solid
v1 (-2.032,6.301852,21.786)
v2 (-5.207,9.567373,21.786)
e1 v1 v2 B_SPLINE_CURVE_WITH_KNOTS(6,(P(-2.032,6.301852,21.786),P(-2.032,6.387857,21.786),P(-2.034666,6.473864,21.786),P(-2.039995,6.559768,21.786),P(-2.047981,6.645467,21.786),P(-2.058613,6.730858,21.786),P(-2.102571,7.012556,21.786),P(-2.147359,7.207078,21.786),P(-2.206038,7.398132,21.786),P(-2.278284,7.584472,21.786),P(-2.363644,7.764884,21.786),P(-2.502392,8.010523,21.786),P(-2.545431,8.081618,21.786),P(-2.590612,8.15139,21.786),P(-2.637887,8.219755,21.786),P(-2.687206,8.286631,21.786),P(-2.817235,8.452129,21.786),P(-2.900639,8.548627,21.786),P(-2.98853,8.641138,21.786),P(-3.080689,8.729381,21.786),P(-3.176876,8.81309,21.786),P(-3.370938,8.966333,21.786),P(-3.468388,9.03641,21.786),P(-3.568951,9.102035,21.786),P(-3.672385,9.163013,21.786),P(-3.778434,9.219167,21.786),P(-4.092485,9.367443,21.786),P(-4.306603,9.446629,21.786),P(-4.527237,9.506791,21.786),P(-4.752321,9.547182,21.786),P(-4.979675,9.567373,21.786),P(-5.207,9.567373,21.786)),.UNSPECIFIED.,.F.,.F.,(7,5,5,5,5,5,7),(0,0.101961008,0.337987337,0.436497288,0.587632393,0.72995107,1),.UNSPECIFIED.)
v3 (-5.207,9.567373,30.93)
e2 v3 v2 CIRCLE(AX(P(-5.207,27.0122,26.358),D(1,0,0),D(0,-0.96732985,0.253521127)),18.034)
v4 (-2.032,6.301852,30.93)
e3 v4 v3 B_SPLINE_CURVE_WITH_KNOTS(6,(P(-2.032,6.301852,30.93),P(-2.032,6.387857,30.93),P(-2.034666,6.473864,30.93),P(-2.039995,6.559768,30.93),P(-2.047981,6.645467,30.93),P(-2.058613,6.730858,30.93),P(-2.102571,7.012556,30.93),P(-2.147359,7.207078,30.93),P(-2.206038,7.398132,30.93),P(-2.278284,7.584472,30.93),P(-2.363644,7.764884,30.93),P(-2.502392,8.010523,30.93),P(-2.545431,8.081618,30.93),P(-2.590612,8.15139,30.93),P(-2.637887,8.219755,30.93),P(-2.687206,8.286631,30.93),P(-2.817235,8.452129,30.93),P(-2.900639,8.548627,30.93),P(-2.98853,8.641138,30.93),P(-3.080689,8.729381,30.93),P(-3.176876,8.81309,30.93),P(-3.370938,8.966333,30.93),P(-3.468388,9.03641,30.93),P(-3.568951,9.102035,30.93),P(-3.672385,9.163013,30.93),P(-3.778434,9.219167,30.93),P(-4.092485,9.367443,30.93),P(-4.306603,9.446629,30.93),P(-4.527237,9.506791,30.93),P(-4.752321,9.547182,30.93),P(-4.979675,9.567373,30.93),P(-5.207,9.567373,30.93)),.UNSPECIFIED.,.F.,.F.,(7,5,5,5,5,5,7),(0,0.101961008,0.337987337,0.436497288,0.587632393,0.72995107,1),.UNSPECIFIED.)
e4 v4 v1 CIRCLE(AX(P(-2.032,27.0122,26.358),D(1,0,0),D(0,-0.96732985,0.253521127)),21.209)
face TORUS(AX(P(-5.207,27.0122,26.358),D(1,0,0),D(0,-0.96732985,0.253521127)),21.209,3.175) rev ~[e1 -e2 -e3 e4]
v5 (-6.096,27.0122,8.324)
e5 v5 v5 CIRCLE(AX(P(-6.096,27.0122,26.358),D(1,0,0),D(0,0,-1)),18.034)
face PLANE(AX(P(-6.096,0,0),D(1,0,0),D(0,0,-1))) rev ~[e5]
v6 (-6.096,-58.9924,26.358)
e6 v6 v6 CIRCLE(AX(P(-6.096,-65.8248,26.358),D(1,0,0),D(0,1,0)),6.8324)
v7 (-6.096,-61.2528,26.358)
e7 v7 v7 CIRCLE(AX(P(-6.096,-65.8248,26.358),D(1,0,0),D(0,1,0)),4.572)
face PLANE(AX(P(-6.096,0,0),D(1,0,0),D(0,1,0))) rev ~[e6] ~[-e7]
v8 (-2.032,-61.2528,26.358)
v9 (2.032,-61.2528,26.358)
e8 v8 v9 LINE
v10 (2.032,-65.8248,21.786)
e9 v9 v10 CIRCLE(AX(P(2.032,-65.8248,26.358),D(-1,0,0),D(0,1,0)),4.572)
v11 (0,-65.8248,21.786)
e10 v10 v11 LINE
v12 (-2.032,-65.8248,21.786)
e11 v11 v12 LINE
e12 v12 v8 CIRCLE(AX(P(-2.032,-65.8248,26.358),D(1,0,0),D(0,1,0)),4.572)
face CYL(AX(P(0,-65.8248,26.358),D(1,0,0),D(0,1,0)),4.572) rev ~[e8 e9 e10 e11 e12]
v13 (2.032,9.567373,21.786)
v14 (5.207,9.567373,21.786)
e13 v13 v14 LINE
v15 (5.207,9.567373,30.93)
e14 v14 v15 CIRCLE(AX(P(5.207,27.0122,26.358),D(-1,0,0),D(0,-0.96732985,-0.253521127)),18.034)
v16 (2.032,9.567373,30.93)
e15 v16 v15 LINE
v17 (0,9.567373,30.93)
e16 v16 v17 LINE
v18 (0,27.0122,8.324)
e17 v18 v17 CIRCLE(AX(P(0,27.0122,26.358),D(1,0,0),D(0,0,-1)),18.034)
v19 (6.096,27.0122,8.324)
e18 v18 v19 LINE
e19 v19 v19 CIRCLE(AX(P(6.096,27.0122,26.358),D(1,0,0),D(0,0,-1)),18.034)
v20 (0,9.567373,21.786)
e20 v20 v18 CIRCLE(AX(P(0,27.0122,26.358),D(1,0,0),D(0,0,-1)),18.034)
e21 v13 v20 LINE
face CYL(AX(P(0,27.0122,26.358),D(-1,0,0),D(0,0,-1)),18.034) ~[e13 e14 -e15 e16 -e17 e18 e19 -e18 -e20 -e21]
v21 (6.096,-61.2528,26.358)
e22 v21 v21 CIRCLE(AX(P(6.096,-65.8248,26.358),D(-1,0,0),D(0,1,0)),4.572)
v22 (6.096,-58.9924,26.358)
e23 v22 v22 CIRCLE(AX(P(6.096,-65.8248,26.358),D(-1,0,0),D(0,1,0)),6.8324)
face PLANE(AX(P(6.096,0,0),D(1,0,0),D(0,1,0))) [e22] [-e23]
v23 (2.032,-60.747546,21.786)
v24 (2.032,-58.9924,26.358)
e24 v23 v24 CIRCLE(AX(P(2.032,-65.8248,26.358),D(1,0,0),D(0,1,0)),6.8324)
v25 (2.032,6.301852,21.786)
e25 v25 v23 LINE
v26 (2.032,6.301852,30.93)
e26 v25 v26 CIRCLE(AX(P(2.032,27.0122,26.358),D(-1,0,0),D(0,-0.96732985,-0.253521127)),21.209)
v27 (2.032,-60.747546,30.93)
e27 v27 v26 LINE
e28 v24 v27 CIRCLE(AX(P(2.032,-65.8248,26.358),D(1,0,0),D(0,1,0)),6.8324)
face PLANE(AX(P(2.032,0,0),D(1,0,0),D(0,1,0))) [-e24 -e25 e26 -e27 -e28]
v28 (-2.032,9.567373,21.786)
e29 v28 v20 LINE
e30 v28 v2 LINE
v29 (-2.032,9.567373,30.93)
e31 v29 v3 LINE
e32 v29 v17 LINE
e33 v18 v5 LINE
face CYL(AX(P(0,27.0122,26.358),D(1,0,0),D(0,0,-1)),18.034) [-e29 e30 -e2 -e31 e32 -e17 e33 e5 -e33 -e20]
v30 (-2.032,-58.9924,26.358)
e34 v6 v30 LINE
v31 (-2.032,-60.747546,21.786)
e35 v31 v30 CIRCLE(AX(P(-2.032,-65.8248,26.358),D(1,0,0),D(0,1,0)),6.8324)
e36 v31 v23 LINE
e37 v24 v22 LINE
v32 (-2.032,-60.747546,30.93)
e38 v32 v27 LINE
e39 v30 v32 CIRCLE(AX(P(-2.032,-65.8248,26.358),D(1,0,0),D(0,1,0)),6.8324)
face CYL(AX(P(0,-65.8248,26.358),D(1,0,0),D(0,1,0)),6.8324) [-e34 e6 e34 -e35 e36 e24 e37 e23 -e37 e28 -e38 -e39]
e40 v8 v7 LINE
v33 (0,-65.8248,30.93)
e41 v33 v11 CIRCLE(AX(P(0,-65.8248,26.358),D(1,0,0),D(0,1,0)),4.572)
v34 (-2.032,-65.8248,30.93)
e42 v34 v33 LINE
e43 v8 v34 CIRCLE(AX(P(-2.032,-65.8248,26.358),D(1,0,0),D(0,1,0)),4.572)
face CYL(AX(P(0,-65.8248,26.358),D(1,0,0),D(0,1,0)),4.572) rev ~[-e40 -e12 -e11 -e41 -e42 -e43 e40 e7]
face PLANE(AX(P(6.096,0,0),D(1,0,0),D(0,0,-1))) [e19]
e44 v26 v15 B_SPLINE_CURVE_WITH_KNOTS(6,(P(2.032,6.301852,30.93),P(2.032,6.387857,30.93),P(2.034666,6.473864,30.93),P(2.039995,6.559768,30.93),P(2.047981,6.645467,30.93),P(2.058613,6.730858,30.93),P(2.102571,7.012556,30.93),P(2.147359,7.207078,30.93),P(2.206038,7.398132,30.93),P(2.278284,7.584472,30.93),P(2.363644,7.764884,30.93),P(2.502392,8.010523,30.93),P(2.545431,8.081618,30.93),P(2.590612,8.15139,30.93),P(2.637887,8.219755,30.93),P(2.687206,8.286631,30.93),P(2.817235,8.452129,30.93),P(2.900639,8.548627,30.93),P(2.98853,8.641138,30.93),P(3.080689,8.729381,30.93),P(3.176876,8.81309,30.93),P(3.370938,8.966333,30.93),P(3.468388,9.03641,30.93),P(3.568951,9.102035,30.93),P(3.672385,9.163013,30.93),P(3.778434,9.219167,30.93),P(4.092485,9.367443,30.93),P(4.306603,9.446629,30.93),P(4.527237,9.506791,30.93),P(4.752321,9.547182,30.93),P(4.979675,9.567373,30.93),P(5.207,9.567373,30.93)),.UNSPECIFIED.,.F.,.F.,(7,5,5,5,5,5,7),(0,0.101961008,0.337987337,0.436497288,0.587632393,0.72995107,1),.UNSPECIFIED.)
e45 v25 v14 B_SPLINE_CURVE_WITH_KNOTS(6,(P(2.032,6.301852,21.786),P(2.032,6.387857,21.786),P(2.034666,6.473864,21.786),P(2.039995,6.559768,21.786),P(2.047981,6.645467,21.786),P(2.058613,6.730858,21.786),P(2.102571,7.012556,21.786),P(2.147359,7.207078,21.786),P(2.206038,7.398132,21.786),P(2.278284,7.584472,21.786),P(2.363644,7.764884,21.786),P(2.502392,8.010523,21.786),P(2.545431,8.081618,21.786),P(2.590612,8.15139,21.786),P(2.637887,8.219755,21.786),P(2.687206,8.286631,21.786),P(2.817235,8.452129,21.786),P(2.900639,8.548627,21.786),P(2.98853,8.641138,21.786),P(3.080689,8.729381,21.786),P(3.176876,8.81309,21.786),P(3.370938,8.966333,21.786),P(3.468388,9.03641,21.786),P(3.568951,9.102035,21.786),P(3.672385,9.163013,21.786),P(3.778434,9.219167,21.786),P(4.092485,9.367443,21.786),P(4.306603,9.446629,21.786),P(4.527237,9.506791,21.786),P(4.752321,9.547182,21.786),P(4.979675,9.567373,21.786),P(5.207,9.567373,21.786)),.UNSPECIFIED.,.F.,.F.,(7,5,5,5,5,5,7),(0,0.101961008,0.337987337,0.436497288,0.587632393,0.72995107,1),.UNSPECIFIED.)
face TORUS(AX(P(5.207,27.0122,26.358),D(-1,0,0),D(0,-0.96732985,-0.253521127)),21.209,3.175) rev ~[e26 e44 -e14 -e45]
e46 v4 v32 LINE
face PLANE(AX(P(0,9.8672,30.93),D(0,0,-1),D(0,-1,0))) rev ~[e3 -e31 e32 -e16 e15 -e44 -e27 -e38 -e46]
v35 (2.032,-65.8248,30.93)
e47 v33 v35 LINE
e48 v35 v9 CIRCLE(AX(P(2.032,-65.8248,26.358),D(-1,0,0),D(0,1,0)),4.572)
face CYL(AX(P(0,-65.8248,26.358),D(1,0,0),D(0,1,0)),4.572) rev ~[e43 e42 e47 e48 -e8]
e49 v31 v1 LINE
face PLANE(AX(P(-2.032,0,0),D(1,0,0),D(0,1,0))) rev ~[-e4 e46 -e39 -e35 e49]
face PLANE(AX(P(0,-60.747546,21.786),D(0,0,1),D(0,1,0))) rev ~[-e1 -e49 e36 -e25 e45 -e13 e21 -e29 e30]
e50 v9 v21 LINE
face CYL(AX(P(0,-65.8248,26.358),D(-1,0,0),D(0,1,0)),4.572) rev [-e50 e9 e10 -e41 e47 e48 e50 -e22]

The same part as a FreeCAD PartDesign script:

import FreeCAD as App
import Part
import Sketcher
from FreeCAD import Vector
Q = App.Units.Quantity


def edges_at(feature, points):
    """Names of the edges that pass closest to the given points."""
    edges = feature.Shape.Edges
    near = lambda p: min(range(len(edges)), key=lambda i: edges[i].distToShape(Part.Vertex(*p))[0])
    return sorted({f"Edge{near(p) + 1}" for p in points})


def add_polygon(sketch, points):
    """Adds a closed chain of lines whose ends are joined by coincident constraints."""
    first, n = sketch.GeometryCount, len(points)
    for a, b in zip(points, points[1:] + points[:1]):
        sketch.addGeometry(Part.LineSegment(App.Vector(*a, 0), App.Vector(*b, 0)), False)
    for i in range(n):
        sketch.addConstraint(Sketcher.Constraint("Coincident", first + i, 2, first + (i + 1) % n, 1))

doc = App.newDocument("Part")
body = doc.addObject("PartDesign::Body", "Body")

# Sketch on YZ plane
sketch1 = body.newObject("Sketcher::SketchObject", "Sketch")
sketch1.AttachmentSupport = (doc.getObject("YZ_Plane"), [""])
sketch1.MapMode = "FlatFace"
add_polygon(sketch1, [(9.8672, 21.786), (9.8672, 30.93), (-65.8248, 30.93), (-65.8248, 21.786)])  # lines 0-3
sketch1.addConstraint(Sketcher.Constraint("Vertical", 0))
sketch1.addConstraint(Sketcher.Constraint("Horizontal", 1))
sketch1.addConstraint(Sketcher.Constraint("Vertical", 2))
sketch1.addConstraint(Sketcher.Constraint("Horizontal", 3))
sketch1.addConstraint(Sketcher.Constraint("DistanceX", 1, 2, 1, 1, Q("2.98 in")))
sketch1.addConstraint(Sketcher.Constraint("DistanceY", 0, 1, 0, 2, Q("0.36 in")))
sketch1.addConstraint(Sketcher.Constraint("DistanceX", -1, 1, 0, 2, Q("9.8672 mm")))
sketch1.addConstraint(Sketcher.Constraint("DistanceY", -1, 1, 0, 2, Q("30.93 mm")))
pad1 = body.newObject("PartDesign::Pad", "Pad")
pad1.Profile = sketch1
pad1.Length = Q("0.16 in")
pad1.Midplane = True

# Sketch on YZ plane
sketch2 = body.newObject("Sketcher::SketchObject", "Sketch001")
sketch2.AttachmentSupport = (doc.getObject("YZ_Plane"), [""])
sketch2.MapMode = "FlatFace"
sketch2.addGeometry(Part.Circle(Vector(-65.8248, 26.358, 0), Vector(0, 0, 1), 6.8324), False)
sketch2.addGeometry(Part.Circle(Vector(-65.8248, 26.358, 0), Vector(0, 0, 1), 4.572), False)
sketch2.addConstraint(Sketcher.Constraint("Coincident", 1, 3, 0, 3))
sketch2.addConstraint(Sketcher.Constraint("Diameter", 1, Q("0.36 in")))
sketch2.addConstraint(Sketcher.Constraint("Diameter", 0, Q("13.6648 mm")))
sketch2.addConstraint(Sketcher.Constraint("DistanceX", 0, 3, -1, 1, Q("65.8248 mm")))
sketch2.addConstraint(Sketcher.Constraint("DistanceY", -1, 1, 0, 3, Q("26.358 mm")))
pad2 = body.newObject("PartDesign::Pad", "Pad001")
pad2.Profile = sketch2
pad2.Length = Q("0.48 in")
pad2.Midplane = True

# Sketch on YZ plane
sketch3 = body.newObject("Sketcher::SketchObject", "Sketch002")
sketch3.AttachmentSupport = (doc.getObject("YZ_Plane"), [""])
sketch3.MapMode = "FlatFace"
sketch3.addGeometry(Part.Circle(Vector(-65.8248, 26.358, 0), Vector(0, 0, 1), 4.572), False)
sketch3.addConstraint(Sketcher.Constraint("Diameter", 0, Q("0.36 in")))
sketch3.addConstraint(Sketcher.Constraint("DistanceX", 0, 3, -1, 1, Q("65.8248 mm")))
sketch3.addConstraint(Sketcher.Constraint("DistanceY", -1, 1, 0, 3, Q("26.358 mm")))
pocket1 = body.newObject("PartDesign::Pocket", "Pocket")
pocket1.Profile = sketch3
pocket1.Length = Q("0.48 in")
pocket1.Midplane = True

# Sketch on YZ plane
sketch4 = body.newObject("Sketcher::SketchObject", "Sketch003")
sketch4.AttachmentSupport = (doc.getObject("YZ_Plane"), [""])
sketch4.MapMode = "FlatFace"
sketch4.addGeometry(Part.Circle(Vector(27.0122, 26.358, 0), Vector(0, 0, 1), 18.034), False)
sketch4.addConstraint(Sketcher.Constraint("Diameter", 0, Q("1.42 in")))
sketch4.addConstraint(Sketcher.Constraint("DistanceX", -1, 1, 0, 3, Q("27.0122 mm")))
sketch4.addConstraint(Sketcher.Constraint("DistanceY", -1, 1, 0, 3, Q("26.358 mm")))
pad3 = body.newObject("PartDesign::Pad", "Pad002")
pad3.Profile = sketch4
pad3.Length = Q("0.48 in")
pad3.Midplane = True
doc.recompute()

fillet = body.newObject("PartDesign::Fillet", "Fillet")
fillet.Base = (pad3, edges_at(pad3, [(2.032, 8.978, 26.358), (-2.032, 8.978, 26.358)]))
fillet.Radius = Q("0.125 in")

doc.recompute()
